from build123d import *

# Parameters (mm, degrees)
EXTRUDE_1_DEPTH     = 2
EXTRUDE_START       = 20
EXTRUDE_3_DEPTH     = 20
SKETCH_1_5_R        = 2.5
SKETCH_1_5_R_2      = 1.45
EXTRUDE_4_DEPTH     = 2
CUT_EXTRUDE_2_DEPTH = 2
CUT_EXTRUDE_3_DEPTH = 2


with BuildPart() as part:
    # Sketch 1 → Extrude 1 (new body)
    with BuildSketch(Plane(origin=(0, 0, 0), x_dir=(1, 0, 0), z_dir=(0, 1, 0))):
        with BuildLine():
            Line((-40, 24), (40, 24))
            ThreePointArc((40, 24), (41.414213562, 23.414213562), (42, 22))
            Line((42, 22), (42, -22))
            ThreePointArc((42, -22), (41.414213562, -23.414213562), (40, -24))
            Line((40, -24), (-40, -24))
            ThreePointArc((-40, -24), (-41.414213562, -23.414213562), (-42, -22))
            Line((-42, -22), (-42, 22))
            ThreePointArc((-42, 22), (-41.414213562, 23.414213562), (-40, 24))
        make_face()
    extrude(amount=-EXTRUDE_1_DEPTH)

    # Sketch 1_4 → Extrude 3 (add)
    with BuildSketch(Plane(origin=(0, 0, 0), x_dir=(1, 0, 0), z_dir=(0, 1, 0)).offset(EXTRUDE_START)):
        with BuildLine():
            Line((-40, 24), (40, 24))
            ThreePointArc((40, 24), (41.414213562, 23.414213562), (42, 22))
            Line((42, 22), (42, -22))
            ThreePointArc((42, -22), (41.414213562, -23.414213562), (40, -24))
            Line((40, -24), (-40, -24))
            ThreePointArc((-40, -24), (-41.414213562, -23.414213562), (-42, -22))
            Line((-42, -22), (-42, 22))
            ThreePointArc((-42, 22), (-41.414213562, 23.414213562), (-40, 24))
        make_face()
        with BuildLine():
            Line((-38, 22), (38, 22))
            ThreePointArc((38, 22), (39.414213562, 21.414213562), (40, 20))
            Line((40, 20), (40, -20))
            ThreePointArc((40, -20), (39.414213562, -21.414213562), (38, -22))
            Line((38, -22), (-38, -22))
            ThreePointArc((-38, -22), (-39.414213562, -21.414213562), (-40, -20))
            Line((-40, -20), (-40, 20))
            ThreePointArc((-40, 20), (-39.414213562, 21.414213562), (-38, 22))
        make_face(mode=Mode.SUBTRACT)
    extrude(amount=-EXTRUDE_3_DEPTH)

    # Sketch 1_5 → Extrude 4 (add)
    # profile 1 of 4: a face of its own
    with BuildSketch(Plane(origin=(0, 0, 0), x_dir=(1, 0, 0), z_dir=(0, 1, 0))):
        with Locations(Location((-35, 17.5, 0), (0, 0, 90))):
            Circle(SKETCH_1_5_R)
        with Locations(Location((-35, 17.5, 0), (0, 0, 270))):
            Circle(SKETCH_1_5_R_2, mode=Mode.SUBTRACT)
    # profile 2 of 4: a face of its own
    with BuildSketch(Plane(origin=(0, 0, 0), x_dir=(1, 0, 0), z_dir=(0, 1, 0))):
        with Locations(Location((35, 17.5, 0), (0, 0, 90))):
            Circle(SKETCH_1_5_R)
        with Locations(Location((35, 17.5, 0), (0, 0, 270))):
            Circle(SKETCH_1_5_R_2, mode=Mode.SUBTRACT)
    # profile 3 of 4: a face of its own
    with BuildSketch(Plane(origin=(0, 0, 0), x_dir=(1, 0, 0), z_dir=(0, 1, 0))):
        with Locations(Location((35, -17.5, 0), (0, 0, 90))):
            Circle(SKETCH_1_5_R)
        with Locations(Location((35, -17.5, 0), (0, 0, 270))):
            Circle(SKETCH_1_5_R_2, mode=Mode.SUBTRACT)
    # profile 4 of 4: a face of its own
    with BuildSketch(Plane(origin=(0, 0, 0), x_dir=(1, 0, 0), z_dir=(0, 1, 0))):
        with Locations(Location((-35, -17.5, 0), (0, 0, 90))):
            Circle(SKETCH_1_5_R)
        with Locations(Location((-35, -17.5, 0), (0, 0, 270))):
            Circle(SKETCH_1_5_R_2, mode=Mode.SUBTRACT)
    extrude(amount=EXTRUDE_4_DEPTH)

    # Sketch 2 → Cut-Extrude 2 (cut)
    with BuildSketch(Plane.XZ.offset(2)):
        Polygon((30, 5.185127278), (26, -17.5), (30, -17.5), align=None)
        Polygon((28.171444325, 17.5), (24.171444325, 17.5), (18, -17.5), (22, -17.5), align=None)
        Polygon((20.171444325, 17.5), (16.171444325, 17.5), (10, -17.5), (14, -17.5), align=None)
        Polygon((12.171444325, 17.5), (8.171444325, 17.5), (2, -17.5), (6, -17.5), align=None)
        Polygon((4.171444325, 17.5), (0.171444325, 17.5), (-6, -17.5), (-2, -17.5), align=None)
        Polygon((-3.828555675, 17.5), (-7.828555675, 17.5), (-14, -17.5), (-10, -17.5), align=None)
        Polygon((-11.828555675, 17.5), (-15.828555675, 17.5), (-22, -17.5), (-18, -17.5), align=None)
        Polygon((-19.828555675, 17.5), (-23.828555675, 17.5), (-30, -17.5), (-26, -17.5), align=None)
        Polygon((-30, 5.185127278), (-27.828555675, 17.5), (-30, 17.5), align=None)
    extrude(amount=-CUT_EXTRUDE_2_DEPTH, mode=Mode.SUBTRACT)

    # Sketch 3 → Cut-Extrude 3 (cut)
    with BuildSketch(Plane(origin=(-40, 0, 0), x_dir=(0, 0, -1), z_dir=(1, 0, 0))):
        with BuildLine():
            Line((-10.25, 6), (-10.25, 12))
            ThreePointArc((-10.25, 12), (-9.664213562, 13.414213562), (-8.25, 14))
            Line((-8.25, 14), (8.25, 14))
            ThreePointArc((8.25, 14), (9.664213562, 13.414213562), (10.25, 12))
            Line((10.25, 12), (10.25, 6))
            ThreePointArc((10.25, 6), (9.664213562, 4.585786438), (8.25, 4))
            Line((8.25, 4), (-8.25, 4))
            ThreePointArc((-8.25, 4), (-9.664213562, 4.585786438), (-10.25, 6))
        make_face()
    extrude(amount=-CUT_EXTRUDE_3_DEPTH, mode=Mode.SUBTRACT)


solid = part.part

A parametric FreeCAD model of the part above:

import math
import FreeCAD as App
import Part
import Sketcher

V = App.Vector
Q = App.Units.Quantity


def add_polygon(sketch, points):
    """Adds a closed chain of lines whose ends are joined by coincident constraints."""
    first, n = sketch.GeometryCount, len(points)
    for a, b in zip(points, points[1:] + points[:1]):
        sketch.addGeometry(Part.LineSegment(App.Vector(*a, 0), App.Vector(*b, 0)), False)
    for i in range(n):
        sketch.addConstraint(Sketcher.Constraint("Coincident", first + i, 2, first + (i + 1) % n, 1))

doc = App.newDocument("Part")
params = doc.addObject("Spreadsheet::Sheet", "Params")
for row, (alias, value) in enumerate([
    ("sketch1_radius", "2 mm"),
    ("sketch1_width", "80 mm"),
    ("sketch1_height", "44 mm"),
    ("pad1_length", "2 mm"),
    ("sketch2_radius", "2 mm"),
    ("sketch2_width", "80 mm"),
    ("sketch2_height", "44 mm"),
    ("pad2_length", "20 mm"),
    ("sketch3_diameter", "5 mm"),
    ("sketch3_diameter2", "2.9 mm"),
    ("pad3_length", "2 mm"),
    ("sketch4_width", "4 mm"),
    ("pocket1_length", "2 mm"),
    ("sketch5_radius", "2 mm"),
    ("sketch5_width", "6 mm"),
    ("sketch5_height", "16.5 mm"),
    ("pocket2_length", "2 mm"),
], start=1):
    params.set(f"A{row}", alias)
    params.set(f"B{row}", "=" + value)
    params.setAlias(f"B{row}", alias)

body = doc.addObject("PartDesign::Body", "Body")

# Sketch on XZ plane
sketch1 = doc.addObject("Sketcher::SketchObject", "Sketch")
body.addObject(sketch1)
sketch1.AttachmentSupport = (doc.XZ_Plane, [""])
sketch1.MapMode = "FlatFace"
sketch1.addGeometry(Part.LineSegment(V(40, -24, 0), V(-40, -24, 0)), False)
sketch1.addGeometry(Part.ArcOfCircle(Part.Circle(V(-40, -22, 0), V(0, 0, 1), 2), math.radians(-180), math.radians(-90)), False)
sketch1.addGeometry(Part.LineSegment(V(-42, -22, 0), V(-42, 22, 0)), False)
sketch1.addGeometry(Part.ArcOfCircle(Part.Circle(V(-40, 22, 0), V(0, 0, 1), 2), math.radians(90), math.radians(180)), False)
sketch1.addGeometry(Part.LineSegment(V(-40, 24, 0), V(40, 24, 0)), False)
sketch1.addGeometry(Part.ArcOfCircle(Part.Circle(V(40, 22, 0), V(0, 0, 1), 2), math.radians(0), math.radians(90)), False)
sketch1.addGeometry(Part.LineSegment(V(42, 22, 0), V(42, -22, 0)), False)
sketch1.addGeometry(Part.ArcOfCircle(Part.Circle(V(40, -22, 0), V(0, 0, 1), 2), math.radians(-90), math.radians(0)), False)
sketch1.addConstraint(Sketcher.Constraint("Tangent", 0, 2, 1, 2))
sketch1.addConstraint(Sketcher.Constraint("Tangent", 1, 1, 2, 1))
sketch1.addConstraint(Sketcher.Constraint("Tangent", 2, 2, 3, 2))
sketch1.addConstraint(Sketcher.Constraint("Tangent", 3, 1, 4, 1))
sketch1.addConstraint(Sketcher.Constraint("Tangent", 4, 2, 5, 2))
sketch1.addConstraint(Sketcher.Constraint("Tangent", 5, 1, 6, 1))
sketch1.addConstraint(Sketcher.Constraint("Tangent", 6, 2, 7, 2))
sketch1.addConstraint(Sketcher.Constraint("Tangent", 7, 1, 0, 1))
sketch1.addConstraint(Sketcher.Constraint("Horizontal", 0))
sketch1.addConstraint(Sketcher.Constraint("Vertical", 2))
sketch1.addConstraint(Sketcher.Constraint("Horizontal", 4))
sketch1.addConstraint(Sketcher.Constraint("Vertical", 6))
sketch1.addConstraint(Sketcher.Constraint("Equal", 1, 3))
sketch1.addConstraint(Sketcher.Constraint("Equal", 3, 5))
sketch1.addConstraint(Sketcher.Constraint("Equal", 5, 7))
sketch1.addConstraint(Sketcher.Constraint("Symmetric", 1, 3, 5, 3, -1, 1))
sketch1.addConstraint(Sketcher.Constraint("Radius", 1, Q("2 mm")))
sketch1.addConstraint(Sketcher.Constraint("DistanceX", 0, 2, 0, 1, Q("80 mm")))
sketch1.addConstraint(Sketcher.Constraint("DistanceY", 2, 1, 2, 2, Q("44 mm")))
sketch1.setExpression("Constraints[16]", "Params.sketch1_radius")
sketch1.setExpression("Constraints[17]", "Params.sketch1_width")
sketch1.setExpression("Constraints[18]", "Params.sketch1_height")
pad1 = doc.addObject("PartDesign::Pad", "Pad")
body.addObject(pad1)
pad1.Profile = sketch1
pad1.setExpression("Length", "Params.pad1_length")

# Sketch on XZ plane
sketch2 = doc.addObject("Sketcher::SketchObject", "Sketch001")
body.addObject(sketch2)
sketch2.AttachmentSupport = (doc.XZ_Plane, [""])
sketch2.MapMode = "FlatFace"
sketch2.AttachmentOffset = App.Placement(V(0, 0, -20), App.Rotation())
sketch2.addGeometry(Part.LineSegment(V(40, -24, 0), V(-40, -24, 0)), False)
sketch2.addGeometry(Part.ArcOfCircle(Part.Circle(V(-40, -22, 0), V(0, 0, 1), 2), math.radians(-180), math.radians(-90)), False)
sketch2.addGeometry(Part.LineSegment(V(-42, -22, 0), V(-42, 22, 0)), False)
sketch2.addGeometry(Part.ArcOfCircle(Part.Circle(V(-40, 22, 0), V(0, 0, 1), 2), math.radians(90), math.radians(180)), False)
sketch2.addGeometry(Part.LineSegment(V(-40, 24, 0), V(40, 24, 0)), False)
sketch2.addGeometry(Part.ArcOfCircle(Part.Circle(V(40, 22, 0), V(0, 0, 1), 2), math.radians(0), math.radians(90)), False)
sketch2.addGeometry(Part.LineSegment(V(42, 22, 0), V(42, -22, 0)), False)
sketch2.addGeometry(Part.ArcOfCircle(Part.Circle(V(40, -22, 0), V(0, 0, 1), 2), math.radians(-90), math.radians(0)), False)
sketch2.addGeometry(Part.LineSegment(V(-38, -22, 0), V(38, -22, 0)), False)
sketch2.addGeometry(Part.ArcOfCircle(Part.Circle(V(38, -20, 0), V(0, 0, 1), 2), math.radians(-90), math.radians(0)), False)
sketch2.addGeometry(Part.LineSegment(V(40, -20, 0), V(40, 20, 0)), False)
sketch2.addGeometry(Part.ArcOfCircle(Part.Circle(V(38, 20, 0), V(0, 0, 1), 2), math.radians(0), math.radians(90)), False)
sketch2.addGeometry(Part.LineSegment(V(38, 22, 0), V(-38, 22, 0)), False)
sketch2.addGeometry(Part.ArcOfCircle(Part.Circle(V(-38, 20, 0), V(0, 0, 1), 2), math.radians(90), math.radians(180)), False)
sketch2.addGeometry(Part.LineSegment(V(-40, 20, 0), V(-40, -20, 0)), False)
sketch2.addGeometry(Part.ArcOfCircle(Part.Circle(V(-38, -20, 0), V(0, 0, 1), 2), math.radians(-180), math.radians(-90)), False)
sketch2.addConstraint(Sketcher.Constraint("Tangent", 0, 2, 1, 2))
sketch2.addConstraint(Sketcher.Constraint("Tangent", 1, 1, 2, 1))
sketch2.addConstraint(Sketcher.Constraint("Tangent", 2, 2, 3, 2))
sketch2.addConstraint(Sketcher.Constraint("Tangent", 3, 1, 4, 1))
sketch2.addConstraint(Sketcher.Constraint("Tangent", 4, 2, 5, 2))
sketch2.addConstraint(Sketcher.Constraint("Tangent", 5, 1, 6, 1))
sketch2.addConstraint(Sketcher.Constraint("Tangent", 6, 2, 7, 2))
sketch2.addConstraint(Sketcher.Constraint("Tangent", 7, 1, 0, 1))
sketch2.addConstraint(Sketcher.Constraint("Tangent", 8, 2, 9, 1))
sketch2.addConstraint(Sketcher.Constraint("Tangent", 9, 2, 10, 1))
sketch2.addConstraint(Sketcher.Constraint("Tangent", 10, 2, 11, 1))
sketch2.addConstraint(Sketcher.Constraint("Tangent", 11, 2, 12, 1))
sketch2.addConstraint(Sketcher.Constraint("Tangent", 12, 2, 13, 1))
sketch2.addConstraint(Sketcher.Constraint("Tangent", 13, 2, 14, 1))
sketch2.addConstraint(Sketcher.Constraint("Tangent", 14, 2, 15, 1))
sketch2.addConstraint(Sketcher.Constraint("Tangent", 15, 2, 8, 1))
sketch2.addConstraint(Sketcher.Constraint("Horizontal", 0))
sketch2.addConstraint(Sketcher.Constraint("Vertical", 2))
sketch2.addConstraint(Sketcher.Constraint("Horizontal", 4))
sketch2.addConstraint(Sketcher.Constraint("Vertical", 6))
sketch2.addConstraint(Sketcher.Constraint("Horizontal", 8))
sketch2.addConstraint(Sketcher.Constraint("Vertical", 10))
sketch2.addConstraint(Sketcher.Constraint("Horizontal", 12))
sketch2.addConstraint(Sketcher.Constraint("Vertical", 14))
sketch2.addConstraint(Sketcher.Constraint("Equal", 1, 3))
sketch2.addConstraint(Sketcher.Constraint("Equal", 3, 5))
sketch2.addConstraint(Sketcher.Constraint("Equal", 5, 7))
sketch2.addConstraint(Sketcher.Constraint("Equal", 7, 9))
sketch2.addConstraint(Sketcher.Constraint("Equal", 9, 11))
sketch2.addConstraint(Sketcher.Constraint("Equal", 11, 13))
sketch2.addConstraint(Sketcher.Constraint("Equal", 13, 15))
sketch2.addConstraint(Sketcher.Constraint("Symmetric", 1, 3, 5, 3, -1, 1))
sketch2.addConstraint(Sketcher.Constraint("Symmetric", 9, 3, 13, 3, -1, 1))
sketch2.addConstraint(Sketcher.Constraint("Horizontal", 6, 2, 8, 2))
sketch2.addConstraint(Sketcher.Constraint("Vertical", 7, 1, 9, 2))
sketch2.addConstraint(Sketcher.Constraint("Radius", 1, Q("2 mm")))
sketch2.addConstraint(Sketcher.Constraint("DistanceX", 0, 2, 0, 1, Q("80 mm")))
sketch2.addConstraint(Sketcher.Constraint("DistanceY", 2, 1, 2, 2, Q("44 mm")))
sketch2.setExpression("Constraints[35]", "Params.sketch2_radius")
sketch2.setExpression("Constraints[36]", "Params.sketch2_width")
sketch2.setExpression("Constraints[37]", "Params.sketch2_height")
pad2 = doc.addObject("PartDesign::Pad", "Pad001")
body.addObject(pad2)
pad2.Profile = sketch2
pad2.setExpression("Length", "Params.pad2_length")

# Sketch on XZ plane
sketch3 = doc.addObject("Sketcher::SketchObject", "Sketch002")
body.addObject(sketch3)
sketch3.AttachmentSupport = (doc.XZ_Plane, [""])
sketch3.MapMode = "FlatFace"
sketch3.addGeometry(Part.Circle(V(-35, -17.5, 0), V(0, 0, 1), 2.5), False)
sketch3.addGeometry(Part.Circle(V(-35, -17.5, 0), V(0, 0, 1), 1.4), False)
sketch3.addGeometry(Part.Circle(V(35, -17.5, 0), V(0, 0, 1), 2.5), False)
sketch3.addGeometry(Part.Circle(V(35, -17.5, 0), V(0, 0, 1), 1.4), False)
sketch3.addGeometry(Part.Circle(V(35, 17.5, 0), V(0, 0, 1), 2.5), False)
sketch3.addGeometry(Part.Circle(V(35, 17.5, 0), V(0, 0, 1), 1.4), False)
sketch3.addGeometry(Part.Circle(V(-35, 17.5, 0), V(0, 0, 1), 2.5), False)
sketch3.addGeometry(Part.Circle(V(-35, 17.5, 0), V(0, 0, 1), 1.4), False)
sketch3.addConstraint(Sketcher.Constraint("Coincident", 1, 3, 0, 3))
sketch3.addConstraint(Sketcher.Constraint("Coincident", 3, 3, 2, 3))
sketch3.addConstraint(Sketcher.Constraint("Coincident", 5, 3, 4, 3))
sketch3.addConstraint(Sketcher.Constraint("Coincident", 7, 3, 6, 3))
sketch3.addConstraint(Sketcher.Constraint("Equal", 0, 2))
sketch3.addConstraint(Sketcher.Constraint("Equal", 1, 3))
sketch3.addConstraint(Sketcher.Constraint("Equal", 2, 4))
sketch3.addConstraint(Sketcher.Constraint("Equal", 3, 5))
sketch3.addConstraint(Sketcher.Constraint("Equal", 4, 6))
sketch3.addConstraint(Sketcher.Constraint("Equal", 5, 7))
sketch3.addConstraint(Sketcher.Constraint("Symmetric", 0, 3, 4, 3, -1, 1))
sketch3.addConstraint(Sketcher.Constraint("Symmetric", 2, 3, 6, 3, -1, 1))
sketch3.addConstraint(Sketcher.Constraint("Symmetric", 0, 3, 2, 3, -2))
sketch3.addConstraint(Sketcher.Constraint("Diameter", 0, Q("5 mm")))
sketch3.addConstraint(Sketcher.Constraint("Diameter", 1, Q("2.9 mm")))
sketch3.addConstraint(Sketcher.Constraint("DistanceX", 0, 3, -1, 1, Q("35 mm")))
sketch3.addConstraint(Sketcher.Constraint("DistanceY", 2, 3, 4, 3, Q("35 mm")))
sketch3.setExpression("Constraints[13]", "Params.sketch3_diameter")
sketch3.setExpression("Constraints[14]", "Params.sketch3_diameter2")
pad3 = doc.addObject("PartDesign::Pad", "Pad002")
body.addObject(pad3)
pad3.Profile = sketch3
pad3.setExpression("Length", "Params.pad3_length")
pad3.Reversed = True

# Sketch on XZ plane
sketch4 = doc.addObject("Sketcher::SketchObject", "Sketch003")
body.addObject(sketch4)
sketch4.AttachmentSupport = (doc.XZ_Plane, [""])
sketch4.MapMode = "FlatFace"
sketch4.AttachmentOffset = App.Placement(V(0, 0, 2), App.Rotation())
add_polygon(sketch4, [(30, 5.2), (26, -17.5), (30, -17.5)])  # lines 0-2
add_polygon(sketch4, [(28.2, 17.5), (24.2, 17.5), (18, -17.5), (22, -17.5)])  # lines 3-6
add_polygon(sketch4, [(20.2, 17.5), (16.2, 17.5), (10, -17.5), (14, -17.5)])  # lines 7-10
add_polygon(sketch4, [(12.2, 17.5), (8.2, 17.5), (2, -17.5), (6, -17.5)])  # lines 11-14
add_polygon(sketch4, [(4.2, 17.5), (0.2, 17.5), (-6, -17.5), (-2, -17.5)])  # lines 15-18
add_polygon(sketch4, [(-3.8, 17.5), (-7.8, 17.5), (-14, -17.5), (-10, -17.5)])  # lines 19-22
add_polygon(sketch4, [(-11.8, 17.5), (-15.8, 17.5), (-22, -17.5), (-18, -17.5)])  # lines 23-26
add_polygon(sketch4, [(-19.8, 17.5), (-23.8, 17.5), (-30, -17.5), (-26, -17.5)])  # lines 27-30
add_polygon(sketch4, [(-30, 5.2), (-27.8, 17.5), (-30, 17.5)])  # lines 31-33
sketch4.addConstraint(Sketcher.Constraint("Horizontal", 1))
sketch4.addConstraint(Sketcher.Constraint("Vertical", 2))
sketch4.addConstraint(Sketcher.Constraint("Horizontal", 3))
sketch4.addConstraint(Sketcher.Constraint("Horizontal", 5))
sketch4.addConstraint(Sketcher.Constraint("Horizontal", 7))
sketch4.addConstraint(Sketcher.Constraint("Horizontal", 9))
sketch4.addConstraint(Sketcher.Constraint("Horizontal", 11))
sketch4.addConstraint(Sketcher.Constraint("Horizontal", 13))
sketch4.addConstraint(Sketcher.Constraint("Horizontal", 15))
sketch4.addConstraint(Sketcher.Constraint("Horizontal", 17))
sketch4.addConstraint(Sketcher.Constraint("Horizontal", 19))
sketch4.addConstraint(Sketcher.Constraint("Horizontal", 21))
sketch4.addConstraint(Sketcher.Constraint("Horizontal", 23))
sketch4.addConstraint(Sketcher.Constraint("Horizontal", 25))
sketch4.addConstraint(Sketcher.Constraint("Horizontal", 27))
sketch4.addConstraint(Sketcher.Constraint("Horizontal", 29))
sketch4.addConstraint(Sketcher.Constraint("Horizontal", 32))
sketch4.addConstraint(Sketcher.Constraint("Vertical", 33))
sketch4.addConstraint(Sketcher.Constraint("Symmetric", 1, 2, 32, 2, -1, 1))
sketch4.addConstraint(Sketcher.Constraint("Symmetric", 13, 2, 16, 2, -2))
sketch4.addConstraint(Sketcher.Constraint("Symmetric", 9, 2, 20, 2, -2))
sketch4.addConstraint(Sketcher.Constraint("Symmetric", 5, 2, 24, 2, -2))
sketch4.addConstraint(Sketcher.Constraint("Symmetric", 1, 2, 28, 2, -2))
sketch4.addConstraint(Sketcher.Constraint("Parallel", 0, 4))
sketch4.addConstraint(Sketcher.Constraint("Parallel", 4, 6))
sketch4.addConstraint(Sketcher.Constraint("Parallel", 6, 8))
sketch4.addConstraint(Sketcher.Constraint("Parallel", 8, 10))
sketch4.addConstraint(Sketcher.Constraint("Parallel", 10, 12))
sketch4.addConstraint(Sketcher.Constraint("Parallel", 12, 14))
sketch4.addConstraint(Sketcher.Constraint("Parallel", 14, 16))
sketch4.addConstraint(Sketcher.Constraint("Parallel", 16, 18))
sketch4.addConstraint(Sketcher.Constraint("Parallel", 18, 20))
sketch4.addConstraint(Sketcher.Constraint("Parallel", 20, 22))
sketch4.addConstraint(Sketcher.Constraint("Parallel", 22, 24))
sketch4.addConstraint(Sketcher.Constraint("Parallel", 24, 26))
sketch4.addConstraint(Sketcher.Constraint("Parallel", 26, 28))
sketch4.addConstraint(Sketcher.Constraint("Parallel", 28, 30))
sketch4.addConstraint(Sketcher.Constraint("Parallel", 30, 31))
sketch4.addConstraint(Sketcher.Constraint("Horizontal", 1, 2, 4, 2))
sketch4.addConstraint(Sketcher.Constraint("Horizontal", 6, 2, 7, 2))
sketch4.addConstraint(Sketcher.Constraint("Horizontal", 5, 2, 8, 2))
sketch4.addConstraint(Sketcher.Constraint("Horizontal", 10, 2, 11, 2))
sketch4.addConstraint(Sketcher.Constraint("Horizontal", 9, 2, 12, 2))
sketch4.addConstraint(Sketcher.Constraint("Horizontal", 14, 2, 15, 2))
sketch4.addConstraint(Sketcher.Constraint("Horizontal", 18, 2, 19, 2))
sketch4.addConstraint(Sketcher.Constraint("Horizontal", 22, 2, 23, 2))
sketch4.addConstraint(Sketcher.Constraint("Horizontal", 26, 2, 27, 2))
sketch4.addConstraint(Sketcher.Constraint("Horizontal", 30, 2, 31, 2))
sketch4.addConstraint(Sketcher.Constraint("Horizontal", 2, 2, 33, 2))
sketch4.addConstraint(Sketcher.Constraint("Equal", 1, 3))
sketch4.addConstraint(Sketcher.Constraint("Equal", 5, 7))
sketch4.addConstraint(Sketcher.Constraint("Equal", 9, 11))
sketch4.addConstraint(Sketcher.Constraint("Equal", 13, 15))
sketch4.addConstraint(Sketcher.Constraint("Equal", 17, 19))
sketch4.addConstraint(Sketcher.Constraint("Equal", 21, 23))
sketch4.addConstraint(Sketcher.Constraint("Equal", 25, 27))
sketch4.addConstraint(Sketcher.Constraint("DistanceX", 1, 1, 1, 2, Q("4 mm")))
sketch4.addConstraint(Sketcher.Constraint("Angle", 0, Q("-100 deg")))
sketch4.addConstraint(Sketcher.Constraint("DistanceX", -1, 1, 0, 2, Q("26 mm")))
sketch4.addConstraint(Sketcher.Constraint("DistanceX", -1, 1, 4, 2, Q("18 mm")))
sketch4.addConstraint(Sketcher.Constraint("DistanceX", -1, 1, 8, 2, Q("10 mm")))
sketch4.addConstraint(Sketcher.Constraint("DistanceX", -1, 1, 12, 2, Q("2 mm")))
sketch4.addConstraint(Sketcher.Constraint("DistanceY", 0, 2, 3, 2, Q("35 mm")))
sketch4.setExpression("Constraints[90]", "Params.sketch4_width")
pocket1 = doc.addObject("PartDesign::Pocket", "Pocket")
body.addObject(pocket1)
pocket1.Profile = sketch4
pocket1.setExpression("Length", "Params.pocket1_length")

# Sketch on YZ plane
sketch5 = doc.addObject("Sketcher::SketchObject", "Sketch004")
body.addObject(sketch5)
sketch5.AttachmentSupport = (doc.YZ_Plane, [""])
sketch5.MapMode = "FlatFace"
sketch5.AttachmentOffset = App.Placement(V(0, 0, -40), App.Rotation())
sketch5.addGeometry(Part.LineSegment(V(12, 10.2, 0), V(6, 10.2, 0)), False)
sketch5.addGeometry(Part.ArcOfCircle(Part.Circle(V(6, 8.2, 0), V(0, 0, 1), 2), math.radians(90), math.radians(180)), False)
sketch5.addGeometry(Part.LineSegment(V(4, 8.2, 0), V(4, -8.2, 0)), False)
sketch5.addGeometry(Part.ArcOfCircle(Part.Circle(V(6, -8.2, 0), V(0, 0, 1), 2), math.radians(-180), math.radians(-90)), False)
sketch5.addGeometry(Part.LineSegment(V(6, -10.2, 0), V(12, -10.2, 0)), False)
sketch5.addGeometry(Part.ArcOfCircle(Part.Circle(V(12, -8.2, 0), V(0, 0, 1), 2), math.radians(-90), math.radians(0)), False)
sketch5.addGeometry(Part.LineSegment(V(14, -8.2, 0), V(14, 8.2, 0)), False)
sketch5.addGeometry(Part.ArcOfCircle(Part.Circle(V(12, 8.2, 0), V(0, 0, 1), 2), math.radians(0), math.radians(90)), False)
sketch5.addConstraint(Sketcher.Constraint("Tangent", 0, 2, 1, 1))
sketch5.addConstraint(Sketcher.Constraint("Tangent", 1, 2, 2, 1))
sketch5.addConstraint(Sketcher.Constraint("Tangent", 2, 2, 3, 1))
sketch5.addConstraint(Sketcher.Constraint("Tangent", 3, 2, 4, 1))
sketch5.addConstraint(Sketcher.Constraint("Tangent", 4, 2, 5, 1))
sketch5.addConstraint(Sketcher.Constraint("Tangent", 5, 2, 6, 1))
sketch5.addConstraint(Sketcher.Constraint("Tangent", 6, 2, 7, 1))
sketch5.addConstraint(Sketcher.Constraint("Tangent", 7, 2, 0, 1))
sketch5.addConstraint(Sketcher.Constraint("Horizontal", 0))
sketch5.addConstraint(Sketcher.Constraint("Vertical", 2))
sketch5.addConstraint(Sketcher.Constraint("Horizontal", 4))
sketch5.addConstraint(Sketcher.Constraint("Vertical", 6))
sketch5.addConstraint(Sketcher.Constraint("Equal", 1, 3))
sketch5.addConstraint(Sketcher.Constraint("Equal", 3, 5))
sketch5.addConstraint(Sketcher.Constraint("Equal", 5, 7))
sketch5.addConstraint(Sketcher.Constraint("Radius", 1, Q("2 mm")))
sketch5.addConstraint(Sketcher.Constraint("DistanceX", 0, 2, 0, 1, Q("6 mm")))
sketch5.addConstraint(Sketcher.Constraint("DistanceY", 2, 2, 2, 1, Q("16.5 mm")))
sketch5.addConstraint(Sketcher.Constraint("DistanceX", -1, 1, 1, 3, Q("6 mm")))
sketch5.addConstraint(Sketcher.Constraint("DistanceY", -1, 1, 1, 3, Q("8.25 mm")))
sketch5.setExpression("Constraints[15]", "Params.sketch5_radius")
sketch5.setExpression("Constraints[16]", "Params.sketch5_width")
sketch5.setExpression("Constraints[17]", "Params.sketch5_height")
pocket2 = doc.addObject("PartDesign::Pocket", "Pocket001")
body.addObject(pocket2)
pocket2.Profile = sketch5
pocket2.setExpression("Length", "Params.pocket2_length")

doc.recompute()
